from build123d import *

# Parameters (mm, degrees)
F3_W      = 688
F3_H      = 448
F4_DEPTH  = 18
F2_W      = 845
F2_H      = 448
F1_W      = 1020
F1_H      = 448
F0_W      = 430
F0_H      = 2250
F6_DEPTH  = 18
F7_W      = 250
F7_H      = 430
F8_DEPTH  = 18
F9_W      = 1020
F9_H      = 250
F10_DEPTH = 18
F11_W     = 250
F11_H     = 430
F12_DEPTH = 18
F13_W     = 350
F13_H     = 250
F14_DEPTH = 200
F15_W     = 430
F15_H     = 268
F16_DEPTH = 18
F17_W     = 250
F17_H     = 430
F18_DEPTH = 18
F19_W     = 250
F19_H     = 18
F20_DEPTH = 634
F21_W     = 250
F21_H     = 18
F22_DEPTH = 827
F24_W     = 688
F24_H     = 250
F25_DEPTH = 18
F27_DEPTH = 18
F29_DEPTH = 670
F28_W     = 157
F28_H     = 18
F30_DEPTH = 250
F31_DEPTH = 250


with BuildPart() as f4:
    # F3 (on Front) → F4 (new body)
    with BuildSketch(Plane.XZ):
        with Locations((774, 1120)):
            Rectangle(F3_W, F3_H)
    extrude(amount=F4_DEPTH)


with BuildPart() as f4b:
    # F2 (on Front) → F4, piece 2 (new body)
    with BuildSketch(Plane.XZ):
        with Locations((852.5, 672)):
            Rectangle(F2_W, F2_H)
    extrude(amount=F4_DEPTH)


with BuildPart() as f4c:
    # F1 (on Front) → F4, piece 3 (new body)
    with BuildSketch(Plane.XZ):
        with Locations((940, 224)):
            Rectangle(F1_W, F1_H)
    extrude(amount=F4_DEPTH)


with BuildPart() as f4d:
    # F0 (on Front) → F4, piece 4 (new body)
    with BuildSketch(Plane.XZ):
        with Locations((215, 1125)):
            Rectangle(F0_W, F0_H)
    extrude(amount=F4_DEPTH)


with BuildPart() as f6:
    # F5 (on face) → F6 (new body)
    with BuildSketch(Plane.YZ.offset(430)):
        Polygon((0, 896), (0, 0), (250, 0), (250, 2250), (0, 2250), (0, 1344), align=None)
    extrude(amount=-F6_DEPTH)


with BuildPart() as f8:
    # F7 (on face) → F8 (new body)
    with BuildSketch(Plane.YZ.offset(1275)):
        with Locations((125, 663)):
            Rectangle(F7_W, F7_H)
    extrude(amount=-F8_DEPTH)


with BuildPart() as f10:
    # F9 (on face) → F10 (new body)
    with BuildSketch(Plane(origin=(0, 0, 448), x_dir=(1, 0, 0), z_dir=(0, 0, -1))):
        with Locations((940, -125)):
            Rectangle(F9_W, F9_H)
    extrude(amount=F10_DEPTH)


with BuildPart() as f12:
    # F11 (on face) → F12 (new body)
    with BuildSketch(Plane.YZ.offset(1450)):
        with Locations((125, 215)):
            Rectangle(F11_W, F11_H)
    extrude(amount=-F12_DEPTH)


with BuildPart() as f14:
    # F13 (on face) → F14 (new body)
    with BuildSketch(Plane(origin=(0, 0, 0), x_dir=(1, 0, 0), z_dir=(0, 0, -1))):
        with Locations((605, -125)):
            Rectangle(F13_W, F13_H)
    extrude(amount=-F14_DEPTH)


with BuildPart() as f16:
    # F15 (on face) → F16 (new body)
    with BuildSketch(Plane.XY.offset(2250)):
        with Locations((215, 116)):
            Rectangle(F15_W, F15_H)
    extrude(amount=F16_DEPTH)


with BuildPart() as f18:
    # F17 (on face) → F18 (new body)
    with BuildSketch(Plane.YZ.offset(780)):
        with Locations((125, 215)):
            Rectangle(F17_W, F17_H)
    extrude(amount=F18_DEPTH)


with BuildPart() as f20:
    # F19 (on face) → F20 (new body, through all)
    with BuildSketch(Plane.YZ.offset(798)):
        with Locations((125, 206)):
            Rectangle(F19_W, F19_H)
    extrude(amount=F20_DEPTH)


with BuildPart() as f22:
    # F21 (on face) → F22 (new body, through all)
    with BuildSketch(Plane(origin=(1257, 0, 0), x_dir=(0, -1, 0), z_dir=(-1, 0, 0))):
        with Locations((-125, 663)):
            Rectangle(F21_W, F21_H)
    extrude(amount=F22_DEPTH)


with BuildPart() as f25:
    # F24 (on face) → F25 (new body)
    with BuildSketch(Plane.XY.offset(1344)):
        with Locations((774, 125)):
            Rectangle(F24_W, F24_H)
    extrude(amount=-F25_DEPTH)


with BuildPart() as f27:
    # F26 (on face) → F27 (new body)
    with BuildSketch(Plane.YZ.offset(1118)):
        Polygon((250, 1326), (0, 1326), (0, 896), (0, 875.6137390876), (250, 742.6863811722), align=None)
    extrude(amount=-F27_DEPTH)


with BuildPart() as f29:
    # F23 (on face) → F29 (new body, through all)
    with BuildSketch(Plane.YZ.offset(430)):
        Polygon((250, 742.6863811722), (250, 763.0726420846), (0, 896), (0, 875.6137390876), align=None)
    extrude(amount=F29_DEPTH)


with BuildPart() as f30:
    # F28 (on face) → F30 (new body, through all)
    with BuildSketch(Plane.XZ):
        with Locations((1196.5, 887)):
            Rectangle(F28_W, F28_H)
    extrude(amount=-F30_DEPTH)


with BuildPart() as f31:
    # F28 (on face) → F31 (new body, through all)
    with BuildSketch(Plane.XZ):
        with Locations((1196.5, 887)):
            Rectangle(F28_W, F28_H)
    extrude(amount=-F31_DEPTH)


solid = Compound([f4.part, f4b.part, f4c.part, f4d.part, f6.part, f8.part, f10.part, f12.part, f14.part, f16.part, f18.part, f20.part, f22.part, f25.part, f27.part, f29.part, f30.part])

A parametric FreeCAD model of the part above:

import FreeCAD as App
import Part
import Sketcher
from FreeCAD import Vector
Q = App.Units.Quantity


def add_polygon(sketch, points):
    """Adds a closed chain of lines whose ends are joined by coincident constraints."""
    first, n = sketch.GeometryCount, len(points)
    for a, b in zip(points, points[1:] + points[:1]):
        sketch.addGeometry(Part.LineSegment(App.Vector(*a, 0), App.Vector(*b, 0)), False)
    for i in range(n):
        sketch.addConstraint(Sketcher.Constraint("Coincident", first + i, 2, first + (i + 1) % n, 1))

doc = App.newDocument("Part")
body = doc.addObject("PartDesign::Body", "Body")

# Sketch on XZ plane
sketch1 = body.newObject("Sketcher::SketchObject", "Sketch")
sketch1.AttachmentSupport = (doc.getObject("XZ_Plane"), [""])
sketch1.MapMode = "FlatFace"
add_polygon(sketch1, [(430, 1344), (430, 896), (1118, 896), (1118, 1344)])  # lines 0-3
sketch1.addConstraint(Sketcher.Constraint("Vertical", 0))
sketch1.addConstraint(Sketcher.Constraint("Horizontal", 1))
sketch1.addConstraint(Sketcher.Constraint("Vertical", 2))
sketch1.addConstraint(Sketcher.Constraint("Horizontal", 3))
sketch1.addConstraint(Sketcher.Constraint("DistanceX", 1, 1, 1, 2, Q("688 mm")))
sketch1.addConstraint(Sketcher.Constraint("DistanceY", 0, 2, 0, 1, Q("448 mm")))
sketch1.addConstraint(Sketcher.Constraint("DistanceX", -1, 1, 0, 2, Q("430 mm")))
sketch1.addConstraint(Sketcher.Constraint("DistanceY", -1, 1, 0, 2, Q("896 mm")))
pad1 = body.newObject("PartDesign::Pad", "Pad")
pad1.Profile = sketch1
pad1.Length = 18
body2 = doc.addObject("PartDesign::Body", "Body001")

# Sketch on XZ plane
sketch2 = body2.newObject("Sketcher::SketchObject", "Sketch001")
sketch2.AttachmentSupport = (doc.getObject("XZ_Plane001"), [""])
sketch2.MapMode = "FlatFace"
add_polygon(sketch2, [(430, 896), (430, 448), (1275, 448), (1275, 896)])  # lines 0-3
sketch2.addConstraint(Sketcher.Constraint("Vertical", 0))
sketch2.addConstraint(Sketcher.Constraint("Horizontal", 1))
sketch2.addConstraint(Sketcher.Constraint("Vertical", 2))
sketch2.addConstraint(Sketcher.Constraint("Horizontal", 3))
sketch2.addConstraint(Sketcher.Constraint("DistanceX", 1, 1, 1, 2, Q("845 mm")))
sketch2.addConstraint(Sketcher.Constraint("DistanceY", 0, 2, 0, 1, Q("448 mm")))
sketch2.addConstraint(Sketcher.Constraint("DistanceX", -1, 1, 0, 2, Q("430 mm")))
sketch2.addConstraint(Sketcher.Constraint("DistanceY", -1, 1, 0, 2, Q("448 mm")))
pad2 = body2.newObject("PartDesign::Pad", "Pad001")
pad2.Profile = sketch2
pad2.Length = 18
body3 = doc.addObject("PartDesign::Body", "Body002")

# Sketch on XZ plane
sketch3 = body3.newObject("Sketcher::SketchObject", "Sketch002")
sketch3.AttachmentSupport = (doc.getObject("XZ_Plane002"), [""])
sketch3.MapMode = "FlatFace"
add_polygon(sketch3, [(430, 448), (430, 0), (1450, 0), (1450, 448)])  # lines 0-3
sketch3.addConstraint(Sketcher.Constraint("Vertical", 0))
sketch3.addConstraint(Sketcher.Constraint("Horizontal", 1))
sketch3.addConstraint(Sketcher.Constraint("Vertical", 2))
sketch3.addConstraint(Sketcher.Constraint("Horizontal", 3))
sketch3.addConstraint(Sketcher.Constraint("PointOnObject", 0, 2, -1))
sketch3.addConstraint(Sketcher.Constraint("DistanceX", 1, 1, 1, 2, Q("1020 mm")))
sketch3.addConstraint(Sketcher.Constraint("DistanceY", 0, 2, 0, 1, Q("448 mm")))
sketch3.addConstraint(Sketcher.Constraint("DistanceX", -1, 1, 0, 2, Q("430 mm")))
pad3 = body3.newObject("PartDesign::Pad", "Pad002")
pad3.Profile = sketch3
pad3.Length = 18
body4 = doc.addObject("PartDesign::Body", "Body003")

# Sketch on XZ plane
sketch4 = body4.newObject("Sketcher::SketchObject", "Sketch003")
sketch4.AttachmentSupport = (doc.getObject("XZ_Plane003"), [""])
sketch4.MapMode = "FlatFace"
add_polygon(sketch4, [(0, 2250), (0, 0), (430, 0), (430, 2250)])  # lines 0-3
sketch4.addConstraint(Sketcher.Constraint("Vertical", 0))
sketch4.addConstraint(Sketcher.Constraint("Horizontal", 1))
sketch4.addConstraint(Sketcher.Constraint("Vertical", 2))
sketch4.addConstraint(Sketcher.Constraint("Horizontal", 3))
sketch4.addConstraint(Sketcher.Constraint("Coincident", 0, 2, -1, 1))
sketch4.addConstraint(Sketcher.Constraint("DistanceX", 1, 1, 1, 2, Q("430 mm")))
sketch4.addConstraint(Sketcher.Constraint("DistanceY", 0, 2, 0, 1, Q("2250 mm")))
pad4 = body4.newObject("PartDesign::Pad", "Pad003")
pad4.Profile = sketch4
pad4.Length = 18
body5 = doc.addObject("PartDesign::Body", "Body004")

# Sketch on YZ plane
sketch5 = body5.newObject("Sketcher::SketchObject", "Sketch004")
sketch5.AttachmentSupport = (doc.getObject("YZ_Plane004"), [""])
sketch5.MapMode = "FlatFace"
sketch5.AttachmentOffset = App.Placement(Vector(0, 0, 430), App.Rotation())
add_polygon(sketch5, [(0, 0), (250, 0), (250, 2250), (0, 2250)])  # lines 0-3
sketch5.addConstraint(Sketcher.Constraint("Horizontal", 0))
sketch5.addConstraint(Sketcher.Constraint("Vertical", 1))
sketch5.addConstraint(Sketcher.Constraint("Horizontal", 2))
sketch5.addConstraint(Sketcher.Constraint("Vertical", 3))
sketch5.addConstraint(Sketcher.Constraint("Coincident", 3, 2, -1, 1))
sketch5.addConstraint(Sketcher.Constraint("DistanceX", 0, 1, 0, 2, Q("250 mm")))
sketch5.addConstraint(Sketcher.Constraint("DistanceY", 1, 1, 1, 2, Q("2250 mm")))
pad5 = body5.newObject("PartDesign::Pad", "Pad004")
pad5.Profile = sketch5
pad5.Length = 18
pad5.Reversed = True
body6 = doc.addObject("PartDesign::Body", "Body005")

# Sketch on YZ plane
sketch6 = body6.newObject("Sketcher::SketchObject", "Sketch005")
sketch6.AttachmentSupport = (doc.getObject("YZ_Plane005"), [""])
sketch6.MapMode = "FlatFace"
sketch6.AttachmentOffset = App.Placement(Vector(0, 0, 1275), App.Rotation())
add_polygon(sketch6, [(0, 878), (0, 448), (250, 448), (250, 878)])  # lines 0-3
sketch6.addConstraint(Sketcher.Constraint("Vertical", 0))
sketch6.addConstraint(Sketcher.Constraint("Horizontal", 1))
sketch6.addConstraint(Sketcher.Constraint("Vertical", 2))
sketch6.addConstraint(Sketcher.Constraint("Horizontal", 3))
sketch6.addConstraint(Sketcher.Constraint("PointOnObject", 0, 2, -2))
sketch6.addConstraint(Sketcher.Constraint("DistanceX", 1, 1, 1, 2, Q("250 mm")))
sketch6.addConstraint(Sketcher.Constraint("DistanceY", 0, 2, 0, 1, Q("430 mm")))
sketch6.addConstraint(Sketcher.Constraint("DistanceY", -1, 1, 0, 2, Q("448 mm")))
pad6 = body6.newObject("PartDesign::Pad", "Pad005")
pad6.Profile = sketch6
pad6.Length = 18
pad6.Reversed = True
body7 = doc.addObject("PartDesign::Body", "Body006")

# Sketch on XY plane
sketch7 = body7.newObject("Sketcher::SketchObject", "Sketch006")
sketch7.AttachmentSupport = (doc.getObject("XY_Plane006"), [""])
sketch7.MapMode = "FlatFace"
sketch7.AttachmentOffset = App.Placement(Vector(0, 0, 448), App.Rotation())
add_polygon(sketch7, [(430, 0), (430, 250), (1450, 250), (1450, 0)])  # lines 0-3
sketch7.addConstraint(Sketcher.Constraint("Vertical", 0))
sketch7.addConstraint(Sketcher.Constraint("Horizontal", 1))
sketch7.addConstraint(Sketcher.Constraint("Vertical", 2))
sketch7.addConstraint(Sketcher.Constraint("Horizontal", 3))
sketch7.addConstraint(Sketcher.Constraint("PointOnObject", 2, 2, -1))
sketch7.addConstraint(Sketcher.Constraint("DistanceX", 1, 1, 1, 2, Q("1020 mm")))
sketch7.addConstraint(Sketcher.Constraint("DistanceY", 0, 1, 0, 2, Q("250 mm")))
sketch7.addConstraint(Sketcher.Constraint("DistanceX", -1, 1, 0, 2, Q("430 mm")))
pad7 = body7.newObject("PartDesign::Pad", "Pad006")
pad7.Profile = sketch7
pad7.Length = 18
pad7.Reversed = True
body8 = doc.addObject("PartDesign::Body", "Body007")

# Sketch on YZ plane
sketch8 = body8.newObject("Sketcher::SketchObject", "Sketch007")
sketch8.AttachmentSupport = (doc.getObject("YZ_Plane007"), [""])
sketch8.MapMode = "FlatFace"
sketch8.AttachmentOffset = App.Placement(Vector(0, 0, 1450), App.Rotation())
add_polygon(sketch8, [(0, 430), (0, 0), (250, 0), (250, 430)])  # lines 0-3
sketch8.addConstraint(Sketcher.Constraint("Vertical", 0))
sketch8.addConstraint(Sketcher.Constraint("Horizontal", 1))
sketch8.addConstraint(Sketcher.Constraint("Vertical", 2))
sketch8.addConstraint(Sketcher.Constraint("Horizontal", 3))
sketch8.addConstraint(Sketcher.Constraint("Coincident", 0, 2, -1, 1))
sketch8.addConstraint(Sketcher.Constraint("DistanceX", 1, 1, 1, 2, Q("250 mm")))
sketch8.addConstraint(Sketcher.Constraint("DistanceY", 0, 2, 0, 1, Q("430 mm")))
pad8 = body8.newObject("PartDesign::Pad", "Pad007")
pad8.Profile = sketch8
pad8.Length = 18
pad8.Reversed = True
body9 = doc.addObject("PartDesign::Body", "Body008")

# Sketch on XY plane
sketch9 = body9.newObject("Sketcher::SketchObject", "Sketch008")
sketch9.AttachmentSupport = (doc.getObject("XY_Plane008"), [""])
sketch9.MapMode = "FlatFace"
add_polygon(sketch9, [(430, 0), (430, 250), (780, 250), (780, 0)])  # lines 0-3
sketch9.addConstraint(Sketcher.Constraint("Vertical", 0))
sketch9.addConstraint(Sketcher.Constraint("Horizontal", 1))
sketch9.addConstraint(Sketcher.Constraint("Vertical", 2))
sketch9.addConstraint(Sketcher.Constraint("Horizontal", 3))
sketch9.addConstraint(Sketcher.Constraint("PointOnObject", 2, 2, -1))
sketch9.addConstraint(Sketcher.Constraint("DistanceX", 1, 1, 1, 2, Q("350 mm")))
sketch9.addConstraint(Sketcher.Constraint("DistanceY", 0, 1, 0, 2, Q("250 mm")))
sketch9.addConstraint(Sketcher.Constraint("DistanceX", -1, 1, 0, 2, Q("430 mm")))
pad9 = body9.newObject("PartDesign::Pad", "Pad008")
pad9.Profile = sketch9
pad9.Length = 200
body10 = doc.addObject("PartDesign::Body", "Body009")

# Sketch on XY plane
sketch10 = body10.newObject("Sketcher::SketchObject", "Sketch009")
sketch10.AttachmentSupport = (doc.getObject("XY_Plane009"), [""])
sketch10.MapMode = "FlatFace"
sketch10.AttachmentOffset = App.Placement(Vector(0, 0, 2250), App.Rotation())
add_polygon(sketch10, [(0, 250), (0, -18), (430, -18), (430, 250)])  # lines 0-3
sketch10.addConstraint(Sketcher.Constraint("Vertical", 0))
sketch10.addConstraint(Sketcher.Constraint("Horizontal", 1))
sketch10.addConstraint(Sketcher.Constraint("Vertical", 2))
sketch10.addConstraint(Sketcher.Constraint("Horizontal", 3))
sketch10.addConstraint(Sketcher.Constraint("PointOnObject", 0, 2, -2))
sketch10.addConstraint(Sketcher.Constraint("DistanceX", 1, 1, 1, 2, Q("430 mm")))
sketch10.addConstraint(Sketcher.Constraint("DistanceY", 0, 2, 0, 1, Q("268 mm")))
sketch10.addConstraint(Sketcher.Constraint("DistanceY", 0, 2, -1, 1, Q("18 mm")))
pad10 = body10.newObject("PartDesign::Pad", "Pad009")
pad10.Profile = sketch10
pad10.Length = 18
body11 = doc.addObject("PartDesign::Body", "Body010")

# Sketch on YZ plane
sketch11 = body11.newObject("Sketcher::SketchObject", "Sketch010")
sketch11.AttachmentSupport = (doc.getObject("YZ_Plane010"), [""])
sketch11.MapMode = "FlatFace"
sketch11.AttachmentOffset = App.Placement(Vector(0, 0, 780), App.Rotation())
add_polygon(sketch11, [(0, 430), (0, 0), (250, 0), (250, 430)])  # lines 0-3
sketch11.addConstraint(Sketcher.Constraint("Vertical", 0))
sketch11.addConstraint(Sketcher.Constraint("Horizontal", 1))
sketch11.addConstraint(Sketcher.Constraint("Vertical", 2))
sketch11.addConstraint(Sketcher.Constraint("Horizontal", 3))
sketch11.addConstraint(Sketcher.Constraint("Coincident", 0, 2, -1, 1))
sketch11.addConstraint(Sketcher.Constraint("DistanceX", 1, 1, 1, 2, Q("250 mm")))
sketch11.addConstraint(Sketcher.Constraint("DistanceY", 0, 2, 0, 1, Q("430 mm")))
pad11 = body11.newObject("PartDesign::Pad", "Pad010")
pad11.Profile = sketch11
pad11.Length = 18
body12 = doc.addObject("PartDesign::Body", "Body011")

# Sketch on YZ plane
sketch12 = body12.newObject("Sketcher::SketchObject", "Sketch011")
sketch12.AttachmentSupport = (doc.getObject("YZ_Plane011"), [""])
sketch12.MapMode = "FlatFace"
sketch12.AttachmentOffset = App.Placement(Vector(0, 0, 798), App.Rotation())
add_polygon(sketch12, [(0, 215), (0, 197), (250, 197), (250, 215)])  # lines 0-3
sketch12.addConstraint(Sketcher.Constraint("Vertical", 0))
sketch12.addConstraint(Sketcher.Constraint("Horizontal", 1))
sketch12.addConstraint(Sketcher.Constraint("Vertical", 2))
sketch12.addConstraint(Sketcher.Constraint("Horizontal", 3))
sketch12.addConstraint(Sketcher.Constraint("PointOnObject", 0, 2, -2))
sketch12.addConstraint(Sketcher.Constraint("DistanceX", 1, 1, 1, 2, Q("250 mm")))
sketch12.addConstraint(Sketcher.Constraint("DistanceY", 0, 2, 0, 1, Q("18 mm")))
sketch12.addConstraint(Sketcher.Constraint("DistanceY", -1, 1, 0, 2, Q("197 mm")))
pad12 = body12.newObject("PartDesign::Pad", "Pad011")
pad12.Profile = sketch12
pad12.Length = 634
body13 = doc.addObject("PartDesign::Body", "Body012")

# Sketch on YZ plane
sketch13 = body13.newObject("Sketcher::SketchObject", "Sketch012")
sketch13.AttachmentSupport = (doc.getObject("YZ_Plane012"), [""])
sketch13.MapMode = "FlatFace"
sketch13.AttachmentOffset = App.Placement(Vector(0, 0, 1257), App.Rotation())
add_polygon(sketch13, [(250, 672), (250, 654), (0, 654), (0, 672)])  # lines 0-3
sketch13.addConstraint(Sketcher.Constraint("Vertical", 0))
sketch13.addConstraint(Sketcher.Constraint("Horizontal", 1))
sketch13.addConstraint(Sketcher.Constraint("Vertical", 2))
sketch13.addConstraint(Sketcher.Constraint("Horizontal", 3))
sketch13.addConstraint(Sketcher.Constraint("PointOnObject", 1, 2, -2))
sketch13.addConstraint(Sketcher.Constraint("DistanceX", 1, 2, 1, 1, Q("250 mm")))
sketch13.addConstraint(Sketcher.Constraint("DistanceY", 0, 2, 0, 1, Q("18 mm")))
sketch13.addConstraint(Sketcher.Constraint("DistanceY", -1, 1, 0, 2, Q("654 mm")))
pad13 = body13.newObject("PartDesign::Pad", "Pad012")
pad13.Profile = sketch13
pad13.Length = 827
pad13.Reversed = True
body14 = doc.addObject("PartDesign::Body", "Body013")

# Sketch on XY plane
sketch14 = body14.newObject("Sketcher::SketchObject", "Sketch013")
sketch14.AttachmentSupport = (doc.getObject("XY_Plane013"), [""])
sketch14.MapMode = "FlatFace"
sketch14.AttachmentOffset = App.Placement(Vector(0, 0, 1344), App.Rotation())
add_polygon(sketch14, [(430, 250), (430, 0), (1118, 0), (1118, 250)])  # lines 0-3
sketch14.addConstraint(Sketcher.Constraint("Vertical", 0))
sketch14.addConstraint(Sketcher.Constraint("Horizontal", 1))
sketch14.addConstraint(Sketcher.Constraint("Vertical", 2))
sketch14.addConstraint(Sketcher.Constraint("Horizontal", 3))
sketch14.addConstraint(Sketcher.Constraint("PointOnObject", 0, 2, -1))
sketch14.addConstraint(Sketcher.Constraint("DistanceX", 1, 1, 1, 2, Q("688 mm")))
sketch14.addConstraint(Sketcher.Constraint("DistanceY", 0, 2, 0, 1, Q("250 mm")))
sketch14.addConstraint(Sketcher.Constraint("DistanceX", -1, 1, 0, 2, Q("430 mm")))
pad14 = body14.newObject("PartDesign::Pad", "Pad013")
pad14.Profile = sketch14
pad14.Length = 18
pad14.Reversed = True
body15 = doc.addObject("PartDesign::Body", "Body014")

# Sketch on YZ plane
sketch15 = body15.newObject("Sketcher::SketchObject", "Sketch014")
sketch15.AttachmentSupport = (doc.getObject("YZ_Plane014"), [""])
sketch15.MapMode = "FlatFace"
sketch15.AttachmentOffset = App.Placement(Vector(0, 0, 1118), App.Rotation())
add_polygon(sketch15, [(250, 1326), (0, 1326), (0, 875.613739), (250, 742.686381)])  # lines 0-3
sketch15.addConstraint(Sketcher.Constraint("Horizontal", 0))
sketch15.addConstraint(Sketcher.Constraint("Vertical", 1))
sketch15.addConstraint(Sketcher.Constraint("Vertical", 3))
sketch15.addConstraint(Sketcher.Constraint("PointOnObject", 0, 2, -2))
sketch15.addConstraint(Sketcher.Constraint("DistanceX", 0, 2, 0, 1, Q("250 mm")))
sketch15.addConstraint(Sketcher.Constraint("Angle", 2, Q("-28 deg")))
sketch15.addConstraint(Sketcher.Constraint("DistanceY", -1, 1, 0, 2, Q("1326 mm")))
sketch15.addConstraint(Sketcher.Constraint("DistanceY", 1, 2, 1, 1, Q("450.386261 mm")))
pad15 = body15.newObject("PartDesign::Pad", "Pad014")
pad15.Profile = sketch15
pad15.Length = 18
pad15.Reversed = True
body16 = doc.addObject("PartDesign::Body", "Body015")

# Sketch on YZ plane
sketch16 = body16.newObject("Sketcher::SketchObject", "Sketch015")
sketch16.AttachmentSupport = (doc.getObject("YZ_Plane015"), [""])
sketch16.MapMode = "FlatFace"
sketch16.AttachmentOffset = App.Placement(Vector(0, 0, 430), App.Rotation())
add_polygon(sketch16, [(250, 742.686381), (250, 763.072642), (0, 896), (0, 875.613739)])  # lines 0-3
sketch16.addConstraint(Sketcher.Constraint("Vertical", 0))
sketch16.addConstraint(Sketcher.Constraint("Vertical", 2))
sketch16.addConstraint(Sketcher.Constraint("PointOnObject", 1, 2, -2))
sketch16.addConstraint(Sketcher.Constraint("Parallel", 1, 3))
sketch16.addConstraint(Sketcher.Constraint("Angle", 1, Q("152 deg")))
sketch16.addConstraint(Sketcher.Constraint("DistanceX", -1, 1, 0, 2, Q("250 mm")))
sketch16.addConstraint(Sketcher.Constraint("DistanceY", -1, 1, 1, 2, Q("896 mm")))
sketch16.addConstraint(Sketcher.Constraint("DistanceY", 0, 1, 0, 2, Q("20.386261 mm")))
pad16 = body16.newObject("PartDesign::Pad", "Pad015")
pad16.Profile = sketch16
pad16.Length = 670
body17 = doc.addObject("PartDesign::Body", "Body016")

# Sketch on XZ plane
sketch17 = body17.newObject("Sketcher::SketchObject", "Sketch016")
sketch17.AttachmentSupport = (doc.getObject("XZ_Plane016"), [""])
sketch17.MapMode = "FlatFace"
add_polygon(sketch17, [(1118, 896), (1118, 878), (1275, 878), (1275, 896)])  # lines 0-3
sketch17.addConstraint(Sketcher.Constraint("Vertical", 0))
sketch17.addConstraint(Sketcher.Constraint("Horizontal", 1))
sketch17.addConstraint(Sketcher.Constraint("Vertical", 2))
sketch17.addConstraint(Sketcher.Constraint("Horizontal", 3))
sketch17.addConstraint(Sketcher.Constraint("DistanceX", 1, 1, 1, 2, Q("157 mm")))
sketch17.addConstraint(Sketcher.Constraint("DistanceY", 0, 2, 0, 1, Q("18 mm")))
sketch17.addConstraint(Sketcher.Constraint("DistanceX", -1, 1, 0, 2, Q("1118 mm")))
sketch17.addConstraint(Sketcher.Constraint("DistanceY", -1, 1, 0, 2, Q("878 mm")))
pad17 = body17.newObject("PartDesign::Pad", "Pad016")
pad17.Profile = sketch17
pad17.Length = 250
pad17.Reversed = True
body18 = doc.addObject("PartDesign::Body", "Body017")

# Sketch on XZ plane
sketch18 = body18.newObject("Sketcher::SketchObject", "Sketch017")
sketch18.AttachmentSupport = (doc.getObject("XZ_Plane017"), [""])
sketch18.MapMode = "FlatFace"
add_polygon(sketch18, [(1118, 896), (1118, 878), (1275, 878), (1275, 896)])  # lines 0-3
sketch18.addConstraint(Sketcher.Constraint("Vertical", 0))
sketch18.addConstraint(Sketcher.Constraint("Horizontal", 1))
sketch18.addConstraint(Sketcher.Constraint("Vertical", 2))
sketch18.addConstraint(Sketcher.Constraint("Horizontal", 3))
sketch18.addConstraint(Sketcher.Constraint("DistanceX", 1, 1, 1, 2, Q("157 mm")))
sketch18.addConstraint(Sketcher.Constraint("DistanceY", 0, 2, 0, 1, Q("18 mm")))
sketch18.addConstraint(Sketcher.Constraint("DistanceX", -1, 1, 0, 2, Q("1118 mm")))
sketch18.addConstraint(Sketcher.Constraint("DistanceY", -1, 1, 0, 2, Q("878 mm")))
pad18 = body18.newObject("PartDesign::Pad", "Pad017")
pad18.Profile = sketch18
pad18.Length = 250
pad18.Reversed = True

doc.recompute()
